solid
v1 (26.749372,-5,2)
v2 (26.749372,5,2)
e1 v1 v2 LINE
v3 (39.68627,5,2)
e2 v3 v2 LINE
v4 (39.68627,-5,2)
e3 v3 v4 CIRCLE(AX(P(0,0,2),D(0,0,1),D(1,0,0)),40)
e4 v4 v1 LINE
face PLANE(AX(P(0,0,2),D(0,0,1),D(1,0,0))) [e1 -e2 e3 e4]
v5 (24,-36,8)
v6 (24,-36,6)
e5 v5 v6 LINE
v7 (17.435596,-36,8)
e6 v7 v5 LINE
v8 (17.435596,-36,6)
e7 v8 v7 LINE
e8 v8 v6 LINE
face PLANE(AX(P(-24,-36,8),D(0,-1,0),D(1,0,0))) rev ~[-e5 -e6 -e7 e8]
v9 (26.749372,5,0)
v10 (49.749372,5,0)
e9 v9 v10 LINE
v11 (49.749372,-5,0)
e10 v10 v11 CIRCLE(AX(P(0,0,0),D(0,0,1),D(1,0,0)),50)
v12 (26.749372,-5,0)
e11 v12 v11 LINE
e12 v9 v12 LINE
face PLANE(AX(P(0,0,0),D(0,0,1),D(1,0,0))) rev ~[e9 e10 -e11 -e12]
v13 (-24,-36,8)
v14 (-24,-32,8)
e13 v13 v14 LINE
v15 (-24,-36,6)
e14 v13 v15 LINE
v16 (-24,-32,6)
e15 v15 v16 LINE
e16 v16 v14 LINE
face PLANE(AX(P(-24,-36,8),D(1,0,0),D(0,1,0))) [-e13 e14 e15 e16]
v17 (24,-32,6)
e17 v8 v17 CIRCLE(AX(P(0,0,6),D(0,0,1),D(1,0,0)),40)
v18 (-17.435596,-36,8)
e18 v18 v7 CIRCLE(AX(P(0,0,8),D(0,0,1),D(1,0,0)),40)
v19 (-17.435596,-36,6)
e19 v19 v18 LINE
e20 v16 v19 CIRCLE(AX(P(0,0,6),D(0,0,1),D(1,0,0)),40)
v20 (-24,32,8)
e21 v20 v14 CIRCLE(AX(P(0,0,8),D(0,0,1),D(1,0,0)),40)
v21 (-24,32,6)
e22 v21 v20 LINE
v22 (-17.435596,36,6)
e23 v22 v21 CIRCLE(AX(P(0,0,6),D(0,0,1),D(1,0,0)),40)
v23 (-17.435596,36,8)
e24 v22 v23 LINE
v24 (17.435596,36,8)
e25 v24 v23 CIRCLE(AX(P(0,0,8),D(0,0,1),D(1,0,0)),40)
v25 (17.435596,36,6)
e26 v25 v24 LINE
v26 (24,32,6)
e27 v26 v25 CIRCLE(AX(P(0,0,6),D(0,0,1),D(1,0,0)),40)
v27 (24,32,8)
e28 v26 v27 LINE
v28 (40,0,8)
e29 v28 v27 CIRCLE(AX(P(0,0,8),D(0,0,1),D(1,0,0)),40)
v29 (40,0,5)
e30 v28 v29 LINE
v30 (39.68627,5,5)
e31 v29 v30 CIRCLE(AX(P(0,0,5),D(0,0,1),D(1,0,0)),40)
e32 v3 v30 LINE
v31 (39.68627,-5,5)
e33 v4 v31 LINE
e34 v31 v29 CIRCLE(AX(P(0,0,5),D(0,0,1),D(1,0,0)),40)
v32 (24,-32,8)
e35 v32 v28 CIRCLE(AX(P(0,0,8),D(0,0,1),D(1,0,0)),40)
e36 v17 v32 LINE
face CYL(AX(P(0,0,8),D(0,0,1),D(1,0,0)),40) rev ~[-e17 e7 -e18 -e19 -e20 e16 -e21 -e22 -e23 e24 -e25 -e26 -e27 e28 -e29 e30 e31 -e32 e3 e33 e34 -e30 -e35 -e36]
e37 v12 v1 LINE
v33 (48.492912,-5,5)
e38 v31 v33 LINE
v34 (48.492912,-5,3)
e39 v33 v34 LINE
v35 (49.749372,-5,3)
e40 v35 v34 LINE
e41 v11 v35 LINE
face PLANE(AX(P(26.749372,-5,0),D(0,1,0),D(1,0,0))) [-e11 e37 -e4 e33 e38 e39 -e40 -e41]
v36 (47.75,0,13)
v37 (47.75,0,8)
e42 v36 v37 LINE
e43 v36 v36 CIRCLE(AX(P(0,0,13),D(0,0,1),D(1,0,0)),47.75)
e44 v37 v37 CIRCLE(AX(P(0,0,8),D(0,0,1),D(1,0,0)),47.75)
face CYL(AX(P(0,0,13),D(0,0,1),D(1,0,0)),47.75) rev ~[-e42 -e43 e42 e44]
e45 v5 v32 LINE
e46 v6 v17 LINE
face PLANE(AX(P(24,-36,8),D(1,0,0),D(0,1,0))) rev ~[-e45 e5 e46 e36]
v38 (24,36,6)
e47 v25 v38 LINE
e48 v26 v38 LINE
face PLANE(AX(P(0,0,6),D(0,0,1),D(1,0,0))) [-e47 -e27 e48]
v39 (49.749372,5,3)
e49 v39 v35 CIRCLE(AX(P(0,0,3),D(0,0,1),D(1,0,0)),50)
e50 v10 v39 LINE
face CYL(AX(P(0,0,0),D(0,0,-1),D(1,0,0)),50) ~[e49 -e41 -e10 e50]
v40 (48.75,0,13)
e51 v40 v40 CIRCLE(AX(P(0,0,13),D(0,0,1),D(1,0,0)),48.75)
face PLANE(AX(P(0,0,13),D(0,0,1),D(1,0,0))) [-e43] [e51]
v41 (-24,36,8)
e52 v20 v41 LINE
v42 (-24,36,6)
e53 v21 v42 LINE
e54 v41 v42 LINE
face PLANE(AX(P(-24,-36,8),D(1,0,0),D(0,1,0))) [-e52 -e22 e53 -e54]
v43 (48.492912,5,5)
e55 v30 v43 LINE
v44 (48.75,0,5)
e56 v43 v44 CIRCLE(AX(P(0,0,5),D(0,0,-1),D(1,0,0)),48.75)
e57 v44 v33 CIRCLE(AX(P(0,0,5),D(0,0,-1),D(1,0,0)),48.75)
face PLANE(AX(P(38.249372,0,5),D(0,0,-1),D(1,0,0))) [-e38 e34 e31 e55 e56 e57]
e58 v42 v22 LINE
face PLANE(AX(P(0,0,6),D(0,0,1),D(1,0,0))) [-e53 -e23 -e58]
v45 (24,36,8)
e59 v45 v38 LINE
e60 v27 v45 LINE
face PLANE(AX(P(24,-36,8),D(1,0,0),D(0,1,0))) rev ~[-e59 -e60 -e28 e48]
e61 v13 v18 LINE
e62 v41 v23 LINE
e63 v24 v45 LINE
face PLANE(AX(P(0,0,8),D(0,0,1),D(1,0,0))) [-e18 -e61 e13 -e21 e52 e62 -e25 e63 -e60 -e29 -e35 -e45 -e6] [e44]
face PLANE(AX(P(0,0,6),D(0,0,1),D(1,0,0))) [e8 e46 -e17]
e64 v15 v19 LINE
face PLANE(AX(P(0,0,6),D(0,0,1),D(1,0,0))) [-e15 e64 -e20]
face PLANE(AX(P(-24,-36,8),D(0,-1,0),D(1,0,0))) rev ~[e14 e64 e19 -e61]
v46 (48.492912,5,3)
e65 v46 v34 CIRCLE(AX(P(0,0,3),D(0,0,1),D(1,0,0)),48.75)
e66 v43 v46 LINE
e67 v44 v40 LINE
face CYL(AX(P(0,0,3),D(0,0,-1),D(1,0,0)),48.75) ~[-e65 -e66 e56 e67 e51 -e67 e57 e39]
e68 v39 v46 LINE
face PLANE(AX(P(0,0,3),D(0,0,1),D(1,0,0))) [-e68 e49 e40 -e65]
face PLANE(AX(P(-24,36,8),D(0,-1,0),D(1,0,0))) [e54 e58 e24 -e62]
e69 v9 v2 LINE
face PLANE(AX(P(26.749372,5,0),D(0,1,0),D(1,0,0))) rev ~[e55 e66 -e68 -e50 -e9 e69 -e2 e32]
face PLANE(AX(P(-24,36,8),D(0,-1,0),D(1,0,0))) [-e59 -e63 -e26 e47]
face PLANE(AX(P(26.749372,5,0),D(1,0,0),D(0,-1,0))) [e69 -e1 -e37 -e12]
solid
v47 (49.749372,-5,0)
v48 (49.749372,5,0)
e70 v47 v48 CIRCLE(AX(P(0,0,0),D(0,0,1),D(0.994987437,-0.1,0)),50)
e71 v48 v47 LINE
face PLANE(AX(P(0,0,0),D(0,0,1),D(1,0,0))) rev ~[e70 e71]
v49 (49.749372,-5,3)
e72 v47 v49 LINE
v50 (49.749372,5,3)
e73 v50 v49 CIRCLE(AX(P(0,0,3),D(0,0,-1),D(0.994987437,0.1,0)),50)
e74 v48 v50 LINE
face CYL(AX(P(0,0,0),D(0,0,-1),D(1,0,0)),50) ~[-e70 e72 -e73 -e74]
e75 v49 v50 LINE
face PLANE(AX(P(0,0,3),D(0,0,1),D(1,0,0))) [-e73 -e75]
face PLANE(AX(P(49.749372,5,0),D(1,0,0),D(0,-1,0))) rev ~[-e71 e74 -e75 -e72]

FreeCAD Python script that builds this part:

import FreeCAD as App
import Part
import Sketcher
from FreeCAD import Vector
Q = App.Units.Quantity

doc = App.newDocument("Part")
body = doc.addObject("PartDesign::Body", "Body")
body.AllowCompound = True

sketch1 = body.newObject("Sketcher::SketchObject", "Sketch")
sketch1.AttachmentSupport = (doc.getObject("XY_Plane"), [""])
sketch1.MapMode = "FlatFace"
sketch1.addGeometry(Part.Circle(Vector(0, 0, 0), Vector(0, 0, 1), 50), False)
sketch1.addConstraint(Sketcher.Constraint("Coincident", 0, 3, -1, 1))
sketch1.addConstraint(Sketcher.Constraint("Diameter", 0, Q("100 mm")))
pad1 = body.newObject("PartDesign::Pad", "Pad")
pad1.Profile = sketch1
pad1.Length = 3

sketch2 = body.newObject("Sketcher::SketchObject", "Sketch001")
sketch2.AttachmentSupport = (doc.getObject("XY_Plane"), [""])
sketch2.MapMode = "FlatFace"
sketch2.AttachmentOffset = App.Placement(Vector(0, 0, 3), App.Rotation())
sketch2.addGeometry(Part.Circle(Vector(0, 0, 0), Vector(0, 0, 1), 49), False)
sketch2.addConstraint(Sketcher.Constraint("Coincident", 0, 3, -1, 1))
sketch2.addConstraint(Sketcher.Constraint("Diameter", 0, Q("97.5 mm")))
pad2 = body.newObject("PartDesign::Pad", "Pad001")
pad2.Profile = sketch2
pad2.Length = 10

sketch3 = body.newObject("Sketcher::SketchObject", "Sketch002")
sketch3.AttachmentSupport = (doc.getObject("XY_Plane"), [""])
sketch3.MapMode = "FlatFace"
sketch3.AttachmentOffset = App.Placement(Vector(0, 0, 13), App.Rotation())
sketch3.addGeometry(Part.Circle(Vector(0, 0, 0), Vector(0, 0, 1), 48), False)
sketch3.addConstraint(Sketcher.Constraint("Coincident", 0, 3, -1, 1))
sketch3.addConstraint(Sketcher.Constraint("Diameter", 0, Q("95.5 mm")))
pocket1 = body.newObject("PartDesign::Pocket", "Pocket")
pocket1.Profile = sketch3
pocket1.Length = 5

sketch4 = body.newObject("Sketcher::SketchObject", "Sketch003")
sketch4.AttachmentSupport = (doc.getObject("XY_Plane"), [""])
sketch4.MapMode = "FlatFace"
sketch4.AttachmentOffset = App.Placement(Vector(0, 0, 8), App.Rotation())
sketch4.addGeometry(Part.Circle(Vector(0, 0, 0), Vector(0, 0, 1), 40), False)
sketch4.addConstraint(Sketcher.Constraint("Coincident", 0, 3, -1, 1))
sketch4.addConstraint(Sketcher.Constraint("Diameter", 0, Q("80 mm")))
pocket2 = body.newObject("PartDesign::Pocket", "Pocket001")
pocket2.Profile = sketch4
pocket2.Length = 6

sketch5 = body.newObject("Sketcher::SketchObject", "Sketch004")
sketch5.AttachmentSupport = (doc.getObject("XY_Plane"), [""])
sketch5.MapMode = "FlatFace"
sketch5.AttachmentOffset = App.Placement(Vector(0, 0, 8), App.Rotation())
sketch5.addGeometry(Part.LineSegment(Vector(-24, 36, 0), Vector(-24, -36, 0)), False)
sketch5.addGeometry(Part.LineSegment(Vector(-24, -36, 0), Vector(24, -36, 0)), False)
sketch5.addGeometry(Part.LineSegment(Vector(24, -36, 0), Vector(24, 36, 0)), False)
sketch5.addGeometry(Part.LineSegment(Vector(24, 36, 0), Vector(-24, 36, 0)), False)
sketch5.addConstraint(Sketcher.Constraint("Coincident", 0, 2, 1, 1))
sketch5.addConstraint(Sketcher.Constraint("Coincident", 1, 2, 2, 1))
sketch5.addConstraint(Sketcher.Constraint("Coincident", 2, 2, 3, 1))
sketch5.addConstraint(Sketcher.Constraint("Coincident", 3, 2, 0, 1))
sketch5.addConstraint(Sketcher.Constraint("Vertical", 0))
sketch5.addConstraint(Sketcher.Constraint("Horizontal", 1))
sketch5.addConstraint(Sketcher.Constraint("Vertical", 2))
sketch5.addConstraint(Sketcher.Constraint("Horizontal", 3))
sketch5.addConstraint(Sketcher.Constraint("Symmetric", 0, 2, 2, 2, -1, 1))
sketch5.addConstraint(Sketcher.Constraint("DistanceX", 1, 1, 1, 2, Q("48 mm")))
sketch5.addConstraint(Sketcher.Constraint("DistanceY", 0, 2, 0, 1, Q("72 mm")))
pocket3 = body.newObject("PartDesign::Pocket", "Pocket002")
pocket3.Profile = sketch5
pocket3.Length = 2

sketch6 = body.newObject("Sketcher::SketchObject", "Sketch005")
sketch6.AttachmentSupport = (doc.getObject("XY_Plane"), [""])
sketch6.MapMode = "FlatFace"
sketch6.addGeometry(Part.LineSegment(Vector(27, -5, 0), Vector(27, 5, 0)), False)
sketch6.addGeometry(Part.LineSegment(Vector(27, 5, 0), Vector(50, 5, 0)), False)
sketch6.addGeometry(Part.LineSegment(Vector(50, 5, 0), Vector(50, -5, 0)), False)
sketch6.addGeometry(Part.LineSegment(Vector(50, -5, 0), Vector(27, -5, 0)), False)
sketch6.addConstraint(Sketcher.Constraint("Coincident", 0, 2, 1, 1))
sketch6.addConstraint(Sketcher.Constraint("Coincident", 1, 2, 2, 1))
sketch6.addConstraint(Sketcher.Constraint("Coincident", 2, 2, 3, 1))
sketch6.addConstraint(Sketcher.Constraint("Coincident", 3, 2, 0, 1))
sketch6.addConstraint(Sketcher.Constraint("Vertical", 0))
sketch6.addConstraint(Sketcher.Constraint("Horizontal", 1))
sketch6.addConstraint(Sketcher.Constraint("Vertical", 2))
sketch6.addConstraint(Sketcher.Constraint("Horizontal", 3))
sketch6.addConstraint(Sketcher.Constraint("DistanceX", 1, 1, 1, 2, Q("23 mm")))
sketch6.addConstraint(Sketcher.Constraint("DistanceY", 0, 1, 0, 2, Q("10 mm")))
sketch6.addConstraint(Sketcher.Constraint("DistanceY", -1, 1, 0, 2, Q("5 mm")))
sketch6.addConstraint(Sketcher.Constraint("DistanceX", -1, 1, 0, 2, Q("26.749372 mm")))
pocket4 = body.newObject("PartDesign::Pocket", "Pocket003")
pocket4.Profile = sketch6
pocket4.Length = 5
pocket4.Reversed = True

doc.recompute()
